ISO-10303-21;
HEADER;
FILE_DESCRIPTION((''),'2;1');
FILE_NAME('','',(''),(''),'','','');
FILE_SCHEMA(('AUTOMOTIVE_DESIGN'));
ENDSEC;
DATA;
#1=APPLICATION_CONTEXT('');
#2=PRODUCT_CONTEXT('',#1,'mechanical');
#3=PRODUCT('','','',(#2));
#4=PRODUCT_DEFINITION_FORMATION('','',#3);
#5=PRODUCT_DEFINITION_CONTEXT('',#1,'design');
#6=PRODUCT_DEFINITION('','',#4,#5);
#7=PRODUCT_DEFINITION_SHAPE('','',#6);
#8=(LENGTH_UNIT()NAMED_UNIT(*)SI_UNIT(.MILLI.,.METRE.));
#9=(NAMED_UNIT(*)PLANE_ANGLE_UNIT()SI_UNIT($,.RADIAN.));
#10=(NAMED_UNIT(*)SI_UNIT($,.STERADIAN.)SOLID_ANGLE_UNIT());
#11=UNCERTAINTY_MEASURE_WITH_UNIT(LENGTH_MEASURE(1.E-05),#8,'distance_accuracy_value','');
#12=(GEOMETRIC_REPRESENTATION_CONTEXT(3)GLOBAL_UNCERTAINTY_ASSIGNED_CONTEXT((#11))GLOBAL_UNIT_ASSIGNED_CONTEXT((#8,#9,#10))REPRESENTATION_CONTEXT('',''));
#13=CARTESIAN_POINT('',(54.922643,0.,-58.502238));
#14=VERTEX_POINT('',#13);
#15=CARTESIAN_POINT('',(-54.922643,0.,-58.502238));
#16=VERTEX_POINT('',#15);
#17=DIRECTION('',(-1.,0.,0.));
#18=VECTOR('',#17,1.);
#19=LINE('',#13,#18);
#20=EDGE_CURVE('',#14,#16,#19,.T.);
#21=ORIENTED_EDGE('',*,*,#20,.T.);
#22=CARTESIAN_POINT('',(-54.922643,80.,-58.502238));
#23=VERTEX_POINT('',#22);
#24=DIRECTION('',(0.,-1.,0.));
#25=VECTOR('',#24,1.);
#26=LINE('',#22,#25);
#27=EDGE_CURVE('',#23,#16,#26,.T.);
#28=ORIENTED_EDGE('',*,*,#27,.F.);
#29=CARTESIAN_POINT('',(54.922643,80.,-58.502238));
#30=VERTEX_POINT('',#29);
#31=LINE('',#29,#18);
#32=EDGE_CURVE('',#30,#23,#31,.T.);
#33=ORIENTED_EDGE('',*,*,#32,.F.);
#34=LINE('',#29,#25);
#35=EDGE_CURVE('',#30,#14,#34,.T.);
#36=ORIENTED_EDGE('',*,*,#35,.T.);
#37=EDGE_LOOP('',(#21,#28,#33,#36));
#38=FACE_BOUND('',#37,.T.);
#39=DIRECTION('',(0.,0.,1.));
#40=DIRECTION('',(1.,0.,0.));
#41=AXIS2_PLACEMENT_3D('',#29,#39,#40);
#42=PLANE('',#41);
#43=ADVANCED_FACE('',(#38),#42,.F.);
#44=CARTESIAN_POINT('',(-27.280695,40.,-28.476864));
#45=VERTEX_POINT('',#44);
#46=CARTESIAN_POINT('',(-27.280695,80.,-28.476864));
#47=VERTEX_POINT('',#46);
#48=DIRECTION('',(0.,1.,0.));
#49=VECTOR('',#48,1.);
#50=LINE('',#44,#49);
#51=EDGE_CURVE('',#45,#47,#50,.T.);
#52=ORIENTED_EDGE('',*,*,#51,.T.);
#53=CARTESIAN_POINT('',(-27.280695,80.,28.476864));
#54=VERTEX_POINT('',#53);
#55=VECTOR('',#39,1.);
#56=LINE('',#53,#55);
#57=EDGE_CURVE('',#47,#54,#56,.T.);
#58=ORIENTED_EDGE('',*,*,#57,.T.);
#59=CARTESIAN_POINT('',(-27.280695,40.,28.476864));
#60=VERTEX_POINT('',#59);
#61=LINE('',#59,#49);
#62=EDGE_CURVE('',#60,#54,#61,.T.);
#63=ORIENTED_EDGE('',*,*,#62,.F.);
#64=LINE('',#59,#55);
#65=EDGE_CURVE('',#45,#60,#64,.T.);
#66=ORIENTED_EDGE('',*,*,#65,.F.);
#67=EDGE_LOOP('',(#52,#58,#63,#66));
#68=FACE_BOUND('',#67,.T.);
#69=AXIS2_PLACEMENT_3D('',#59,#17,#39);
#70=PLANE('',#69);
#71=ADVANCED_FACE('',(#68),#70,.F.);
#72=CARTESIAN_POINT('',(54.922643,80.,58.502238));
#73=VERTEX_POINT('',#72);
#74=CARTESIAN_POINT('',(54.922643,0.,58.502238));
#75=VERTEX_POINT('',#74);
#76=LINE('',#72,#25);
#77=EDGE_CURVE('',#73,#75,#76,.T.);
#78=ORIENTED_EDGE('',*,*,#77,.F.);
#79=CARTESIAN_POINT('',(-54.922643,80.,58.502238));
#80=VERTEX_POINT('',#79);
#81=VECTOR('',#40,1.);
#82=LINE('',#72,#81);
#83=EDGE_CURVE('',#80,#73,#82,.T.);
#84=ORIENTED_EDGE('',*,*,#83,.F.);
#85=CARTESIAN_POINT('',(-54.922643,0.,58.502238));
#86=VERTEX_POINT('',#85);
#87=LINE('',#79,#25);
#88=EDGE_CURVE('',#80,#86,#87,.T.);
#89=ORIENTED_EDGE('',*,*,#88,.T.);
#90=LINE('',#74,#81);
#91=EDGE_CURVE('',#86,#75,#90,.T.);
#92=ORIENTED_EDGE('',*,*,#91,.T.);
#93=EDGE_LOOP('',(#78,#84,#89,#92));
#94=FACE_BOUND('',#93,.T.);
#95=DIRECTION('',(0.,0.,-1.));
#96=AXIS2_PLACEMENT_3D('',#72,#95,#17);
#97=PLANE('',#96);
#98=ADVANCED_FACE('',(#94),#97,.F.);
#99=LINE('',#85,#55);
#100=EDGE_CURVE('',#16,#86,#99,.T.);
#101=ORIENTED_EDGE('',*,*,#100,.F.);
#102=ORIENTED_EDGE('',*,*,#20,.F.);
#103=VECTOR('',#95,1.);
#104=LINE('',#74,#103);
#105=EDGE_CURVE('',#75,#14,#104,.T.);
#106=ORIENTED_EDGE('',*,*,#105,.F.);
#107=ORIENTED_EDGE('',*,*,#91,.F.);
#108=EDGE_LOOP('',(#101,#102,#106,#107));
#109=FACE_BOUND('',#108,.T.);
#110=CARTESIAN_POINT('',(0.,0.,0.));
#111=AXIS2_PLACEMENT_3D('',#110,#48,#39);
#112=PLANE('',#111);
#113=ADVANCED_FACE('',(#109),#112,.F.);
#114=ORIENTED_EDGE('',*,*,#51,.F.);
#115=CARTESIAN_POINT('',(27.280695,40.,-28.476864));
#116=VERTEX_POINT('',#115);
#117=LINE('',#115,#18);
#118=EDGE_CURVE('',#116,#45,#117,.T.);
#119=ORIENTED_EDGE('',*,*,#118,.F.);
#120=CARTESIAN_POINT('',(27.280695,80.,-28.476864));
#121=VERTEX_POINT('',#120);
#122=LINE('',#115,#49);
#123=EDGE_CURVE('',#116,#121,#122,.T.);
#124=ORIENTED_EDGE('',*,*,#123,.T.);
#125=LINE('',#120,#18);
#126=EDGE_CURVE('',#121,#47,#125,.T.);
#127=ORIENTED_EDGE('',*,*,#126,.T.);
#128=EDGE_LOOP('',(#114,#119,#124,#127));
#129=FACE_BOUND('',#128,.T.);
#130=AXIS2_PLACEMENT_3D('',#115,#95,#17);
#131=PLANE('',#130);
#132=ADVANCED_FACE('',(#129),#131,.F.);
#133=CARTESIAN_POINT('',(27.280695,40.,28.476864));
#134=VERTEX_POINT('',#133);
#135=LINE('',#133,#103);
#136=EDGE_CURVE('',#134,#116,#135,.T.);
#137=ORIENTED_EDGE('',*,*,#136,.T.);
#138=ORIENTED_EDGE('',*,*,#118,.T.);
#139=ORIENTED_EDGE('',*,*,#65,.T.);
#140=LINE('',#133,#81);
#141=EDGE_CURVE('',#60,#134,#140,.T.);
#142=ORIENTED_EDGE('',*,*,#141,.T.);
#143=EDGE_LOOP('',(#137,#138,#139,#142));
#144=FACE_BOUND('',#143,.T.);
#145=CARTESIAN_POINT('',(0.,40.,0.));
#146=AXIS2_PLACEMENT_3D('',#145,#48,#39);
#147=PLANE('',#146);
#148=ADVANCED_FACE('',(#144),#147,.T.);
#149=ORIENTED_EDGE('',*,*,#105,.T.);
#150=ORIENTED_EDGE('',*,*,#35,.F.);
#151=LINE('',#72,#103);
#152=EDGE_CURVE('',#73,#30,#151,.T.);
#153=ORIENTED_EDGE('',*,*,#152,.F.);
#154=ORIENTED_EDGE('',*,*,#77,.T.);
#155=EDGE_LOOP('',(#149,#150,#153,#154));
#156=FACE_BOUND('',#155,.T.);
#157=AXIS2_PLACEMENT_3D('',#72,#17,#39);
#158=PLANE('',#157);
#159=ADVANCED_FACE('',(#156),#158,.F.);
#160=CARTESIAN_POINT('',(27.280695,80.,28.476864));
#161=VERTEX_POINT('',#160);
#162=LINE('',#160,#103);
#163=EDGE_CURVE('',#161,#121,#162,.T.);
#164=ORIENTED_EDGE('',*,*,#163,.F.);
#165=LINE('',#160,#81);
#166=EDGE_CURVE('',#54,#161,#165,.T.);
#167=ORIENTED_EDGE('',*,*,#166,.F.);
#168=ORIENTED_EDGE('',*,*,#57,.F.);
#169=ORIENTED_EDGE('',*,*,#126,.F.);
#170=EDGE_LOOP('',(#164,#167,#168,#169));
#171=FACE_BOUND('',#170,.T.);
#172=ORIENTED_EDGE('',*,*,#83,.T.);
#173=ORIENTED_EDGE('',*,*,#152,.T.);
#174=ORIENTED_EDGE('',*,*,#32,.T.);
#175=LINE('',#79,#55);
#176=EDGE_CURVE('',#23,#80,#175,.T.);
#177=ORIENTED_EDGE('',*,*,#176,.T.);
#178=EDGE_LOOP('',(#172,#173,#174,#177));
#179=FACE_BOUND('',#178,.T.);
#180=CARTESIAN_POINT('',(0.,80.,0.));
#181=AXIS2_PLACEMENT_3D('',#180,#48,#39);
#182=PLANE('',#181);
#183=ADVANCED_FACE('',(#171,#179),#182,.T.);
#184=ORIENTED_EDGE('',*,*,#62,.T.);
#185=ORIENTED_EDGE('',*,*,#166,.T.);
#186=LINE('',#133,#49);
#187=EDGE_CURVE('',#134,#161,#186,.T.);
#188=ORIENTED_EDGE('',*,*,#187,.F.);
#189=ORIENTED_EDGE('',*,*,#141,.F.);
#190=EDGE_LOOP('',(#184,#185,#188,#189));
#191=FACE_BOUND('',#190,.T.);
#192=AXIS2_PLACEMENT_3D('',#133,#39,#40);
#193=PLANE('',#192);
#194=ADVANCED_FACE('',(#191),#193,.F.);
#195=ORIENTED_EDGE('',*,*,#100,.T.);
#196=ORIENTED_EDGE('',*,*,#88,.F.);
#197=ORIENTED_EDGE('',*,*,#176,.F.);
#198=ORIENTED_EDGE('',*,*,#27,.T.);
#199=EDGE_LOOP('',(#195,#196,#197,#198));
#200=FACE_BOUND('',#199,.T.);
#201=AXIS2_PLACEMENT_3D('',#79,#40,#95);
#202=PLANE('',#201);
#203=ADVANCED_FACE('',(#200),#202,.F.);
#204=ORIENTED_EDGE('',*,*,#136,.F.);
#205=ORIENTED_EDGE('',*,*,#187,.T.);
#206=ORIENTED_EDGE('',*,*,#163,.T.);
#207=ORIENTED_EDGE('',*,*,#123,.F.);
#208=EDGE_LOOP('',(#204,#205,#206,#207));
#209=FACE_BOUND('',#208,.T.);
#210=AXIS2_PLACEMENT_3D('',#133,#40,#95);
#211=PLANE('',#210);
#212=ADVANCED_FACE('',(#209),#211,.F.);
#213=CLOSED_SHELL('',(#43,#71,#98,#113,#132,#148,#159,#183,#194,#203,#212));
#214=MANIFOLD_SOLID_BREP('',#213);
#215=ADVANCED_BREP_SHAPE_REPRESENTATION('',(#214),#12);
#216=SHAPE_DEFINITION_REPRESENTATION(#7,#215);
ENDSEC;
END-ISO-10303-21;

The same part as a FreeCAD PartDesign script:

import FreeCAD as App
import Part
import Sketcher

doc = App.newDocument("Part")
body = doc.addObject("PartDesign::Body", "Body")

# Sketch on XZ plane
sketch1 = body.newObject("Sketcher::SketchObject", "Sketch")
sketch1.AttachmentSupport = (doc.getObject("XZ_Plane"), [""])
sketch1.MapMode = "FlatFace"
sketch1.addGeometry([
    Part.LineSegment(App.Vector(-55, -59, 0), App.Vector(-55, 59, 0)),
    Part.LineSegment(App.Vector(-55, 59, 0), App.Vector(55, 59, 0)),
    Part.LineSegment(App.Vector(55, 59, 0), App.Vector(55, -59, 0)),
    Part.LineSegment(App.Vector(55, -59, 0), App.Vector(-55, -59, 0)),
], False)
sketch1.addConstraint([
    Sketcher.Constraint("Coincident", 0, 2, 1, 1),
    Sketcher.Constraint("Coincident", 1, 2, 2, 1),
    Sketcher.Constraint("Coincident", 2, 2, 3, 1),
    Sketcher.Constraint("Coincident", 3, 2, 0, 1),
    Sketcher.Constraint("Vertical", 0),
    Sketcher.Constraint("Horizontal", 1),
    Sketcher.Constraint("Vertical", 2),
    Sketcher.Constraint("Horizontal", 3),
    Sketcher.Constraint("Symmetric", 0, 2, 2, 2, -1, 1),
    Sketcher.Constraint("DistanceX", 1, 1, 1, 2, 109.845286),
    Sketcher.Constraint("DistanceY", 0, 1, 0, 2, 117.004476),
])
pad1 = body.newObject("PartDesign::Pad", "Pad")
pad1.Profile = sketch1
pad1.Length = 80
pad1.Reversed = True

# Sketch on XZ plane
sketch2 = body.newObject("Sketcher::SketchObject", "Sketch001")
sketch2.AttachmentSupport = (doc.getObject("XZ_Plane"), [""])
sketch2.MapMode = "FlatFace"
sketch2.AttachmentOffset = App.Placement(App.Vector(0, 0, -80), App.Rotation())
sketch2.addGeometry([
    Part.LineSegment(App.Vector(-27, -28, 0), App.Vector(-27, 28, 0)),
    Part.LineSegment(App.Vector(-27, 28, 0), App.Vector(27, 28, 0)),
    Part.LineSegment(App.Vector(27, 28, 0), App.Vector(27, -28, 0)),
    Part.LineSegment(App.Vector(27, -28, 0), App.Vector(-27, -28, 0)),
], False)
sketch2.addConstraint([
    Sketcher.Constraint("Coincident", 0, 2, 1, 1),
    Sketcher.Constraint("Coincident", 1, 2, 2, 1),
    Sketcher.Constraint("Coincident", 2, 2, 3, 1),
    Sketcher.Constraint("Coincident", 3, 2, 0, 1),
    Sketcher.Constraint("Vertical", 0),
    Sketcher.Constraint("Horizontal", 1),
    Sketcher.Constraint("Vertical", 2),
    Sketcher.Constraint("Horizontal", 3),
    Sketcher.Constraint("Symmetric", 0, 2, 2, 2, -1, 1),
    Sketcher.Constraint("DistanceX", 1, 1, 1, 2, 54.561391),
    Sketcher.Constraint("DistanceY", 0, 1, 0, 2, 56.953728),
])
pocket1 = body.newObject("PartDesign::Pocket", "Pocket")
pocket1.Profile = sketch2
pocket1.Length = 40
pocket1.Reversed = True

doc.recompute()
